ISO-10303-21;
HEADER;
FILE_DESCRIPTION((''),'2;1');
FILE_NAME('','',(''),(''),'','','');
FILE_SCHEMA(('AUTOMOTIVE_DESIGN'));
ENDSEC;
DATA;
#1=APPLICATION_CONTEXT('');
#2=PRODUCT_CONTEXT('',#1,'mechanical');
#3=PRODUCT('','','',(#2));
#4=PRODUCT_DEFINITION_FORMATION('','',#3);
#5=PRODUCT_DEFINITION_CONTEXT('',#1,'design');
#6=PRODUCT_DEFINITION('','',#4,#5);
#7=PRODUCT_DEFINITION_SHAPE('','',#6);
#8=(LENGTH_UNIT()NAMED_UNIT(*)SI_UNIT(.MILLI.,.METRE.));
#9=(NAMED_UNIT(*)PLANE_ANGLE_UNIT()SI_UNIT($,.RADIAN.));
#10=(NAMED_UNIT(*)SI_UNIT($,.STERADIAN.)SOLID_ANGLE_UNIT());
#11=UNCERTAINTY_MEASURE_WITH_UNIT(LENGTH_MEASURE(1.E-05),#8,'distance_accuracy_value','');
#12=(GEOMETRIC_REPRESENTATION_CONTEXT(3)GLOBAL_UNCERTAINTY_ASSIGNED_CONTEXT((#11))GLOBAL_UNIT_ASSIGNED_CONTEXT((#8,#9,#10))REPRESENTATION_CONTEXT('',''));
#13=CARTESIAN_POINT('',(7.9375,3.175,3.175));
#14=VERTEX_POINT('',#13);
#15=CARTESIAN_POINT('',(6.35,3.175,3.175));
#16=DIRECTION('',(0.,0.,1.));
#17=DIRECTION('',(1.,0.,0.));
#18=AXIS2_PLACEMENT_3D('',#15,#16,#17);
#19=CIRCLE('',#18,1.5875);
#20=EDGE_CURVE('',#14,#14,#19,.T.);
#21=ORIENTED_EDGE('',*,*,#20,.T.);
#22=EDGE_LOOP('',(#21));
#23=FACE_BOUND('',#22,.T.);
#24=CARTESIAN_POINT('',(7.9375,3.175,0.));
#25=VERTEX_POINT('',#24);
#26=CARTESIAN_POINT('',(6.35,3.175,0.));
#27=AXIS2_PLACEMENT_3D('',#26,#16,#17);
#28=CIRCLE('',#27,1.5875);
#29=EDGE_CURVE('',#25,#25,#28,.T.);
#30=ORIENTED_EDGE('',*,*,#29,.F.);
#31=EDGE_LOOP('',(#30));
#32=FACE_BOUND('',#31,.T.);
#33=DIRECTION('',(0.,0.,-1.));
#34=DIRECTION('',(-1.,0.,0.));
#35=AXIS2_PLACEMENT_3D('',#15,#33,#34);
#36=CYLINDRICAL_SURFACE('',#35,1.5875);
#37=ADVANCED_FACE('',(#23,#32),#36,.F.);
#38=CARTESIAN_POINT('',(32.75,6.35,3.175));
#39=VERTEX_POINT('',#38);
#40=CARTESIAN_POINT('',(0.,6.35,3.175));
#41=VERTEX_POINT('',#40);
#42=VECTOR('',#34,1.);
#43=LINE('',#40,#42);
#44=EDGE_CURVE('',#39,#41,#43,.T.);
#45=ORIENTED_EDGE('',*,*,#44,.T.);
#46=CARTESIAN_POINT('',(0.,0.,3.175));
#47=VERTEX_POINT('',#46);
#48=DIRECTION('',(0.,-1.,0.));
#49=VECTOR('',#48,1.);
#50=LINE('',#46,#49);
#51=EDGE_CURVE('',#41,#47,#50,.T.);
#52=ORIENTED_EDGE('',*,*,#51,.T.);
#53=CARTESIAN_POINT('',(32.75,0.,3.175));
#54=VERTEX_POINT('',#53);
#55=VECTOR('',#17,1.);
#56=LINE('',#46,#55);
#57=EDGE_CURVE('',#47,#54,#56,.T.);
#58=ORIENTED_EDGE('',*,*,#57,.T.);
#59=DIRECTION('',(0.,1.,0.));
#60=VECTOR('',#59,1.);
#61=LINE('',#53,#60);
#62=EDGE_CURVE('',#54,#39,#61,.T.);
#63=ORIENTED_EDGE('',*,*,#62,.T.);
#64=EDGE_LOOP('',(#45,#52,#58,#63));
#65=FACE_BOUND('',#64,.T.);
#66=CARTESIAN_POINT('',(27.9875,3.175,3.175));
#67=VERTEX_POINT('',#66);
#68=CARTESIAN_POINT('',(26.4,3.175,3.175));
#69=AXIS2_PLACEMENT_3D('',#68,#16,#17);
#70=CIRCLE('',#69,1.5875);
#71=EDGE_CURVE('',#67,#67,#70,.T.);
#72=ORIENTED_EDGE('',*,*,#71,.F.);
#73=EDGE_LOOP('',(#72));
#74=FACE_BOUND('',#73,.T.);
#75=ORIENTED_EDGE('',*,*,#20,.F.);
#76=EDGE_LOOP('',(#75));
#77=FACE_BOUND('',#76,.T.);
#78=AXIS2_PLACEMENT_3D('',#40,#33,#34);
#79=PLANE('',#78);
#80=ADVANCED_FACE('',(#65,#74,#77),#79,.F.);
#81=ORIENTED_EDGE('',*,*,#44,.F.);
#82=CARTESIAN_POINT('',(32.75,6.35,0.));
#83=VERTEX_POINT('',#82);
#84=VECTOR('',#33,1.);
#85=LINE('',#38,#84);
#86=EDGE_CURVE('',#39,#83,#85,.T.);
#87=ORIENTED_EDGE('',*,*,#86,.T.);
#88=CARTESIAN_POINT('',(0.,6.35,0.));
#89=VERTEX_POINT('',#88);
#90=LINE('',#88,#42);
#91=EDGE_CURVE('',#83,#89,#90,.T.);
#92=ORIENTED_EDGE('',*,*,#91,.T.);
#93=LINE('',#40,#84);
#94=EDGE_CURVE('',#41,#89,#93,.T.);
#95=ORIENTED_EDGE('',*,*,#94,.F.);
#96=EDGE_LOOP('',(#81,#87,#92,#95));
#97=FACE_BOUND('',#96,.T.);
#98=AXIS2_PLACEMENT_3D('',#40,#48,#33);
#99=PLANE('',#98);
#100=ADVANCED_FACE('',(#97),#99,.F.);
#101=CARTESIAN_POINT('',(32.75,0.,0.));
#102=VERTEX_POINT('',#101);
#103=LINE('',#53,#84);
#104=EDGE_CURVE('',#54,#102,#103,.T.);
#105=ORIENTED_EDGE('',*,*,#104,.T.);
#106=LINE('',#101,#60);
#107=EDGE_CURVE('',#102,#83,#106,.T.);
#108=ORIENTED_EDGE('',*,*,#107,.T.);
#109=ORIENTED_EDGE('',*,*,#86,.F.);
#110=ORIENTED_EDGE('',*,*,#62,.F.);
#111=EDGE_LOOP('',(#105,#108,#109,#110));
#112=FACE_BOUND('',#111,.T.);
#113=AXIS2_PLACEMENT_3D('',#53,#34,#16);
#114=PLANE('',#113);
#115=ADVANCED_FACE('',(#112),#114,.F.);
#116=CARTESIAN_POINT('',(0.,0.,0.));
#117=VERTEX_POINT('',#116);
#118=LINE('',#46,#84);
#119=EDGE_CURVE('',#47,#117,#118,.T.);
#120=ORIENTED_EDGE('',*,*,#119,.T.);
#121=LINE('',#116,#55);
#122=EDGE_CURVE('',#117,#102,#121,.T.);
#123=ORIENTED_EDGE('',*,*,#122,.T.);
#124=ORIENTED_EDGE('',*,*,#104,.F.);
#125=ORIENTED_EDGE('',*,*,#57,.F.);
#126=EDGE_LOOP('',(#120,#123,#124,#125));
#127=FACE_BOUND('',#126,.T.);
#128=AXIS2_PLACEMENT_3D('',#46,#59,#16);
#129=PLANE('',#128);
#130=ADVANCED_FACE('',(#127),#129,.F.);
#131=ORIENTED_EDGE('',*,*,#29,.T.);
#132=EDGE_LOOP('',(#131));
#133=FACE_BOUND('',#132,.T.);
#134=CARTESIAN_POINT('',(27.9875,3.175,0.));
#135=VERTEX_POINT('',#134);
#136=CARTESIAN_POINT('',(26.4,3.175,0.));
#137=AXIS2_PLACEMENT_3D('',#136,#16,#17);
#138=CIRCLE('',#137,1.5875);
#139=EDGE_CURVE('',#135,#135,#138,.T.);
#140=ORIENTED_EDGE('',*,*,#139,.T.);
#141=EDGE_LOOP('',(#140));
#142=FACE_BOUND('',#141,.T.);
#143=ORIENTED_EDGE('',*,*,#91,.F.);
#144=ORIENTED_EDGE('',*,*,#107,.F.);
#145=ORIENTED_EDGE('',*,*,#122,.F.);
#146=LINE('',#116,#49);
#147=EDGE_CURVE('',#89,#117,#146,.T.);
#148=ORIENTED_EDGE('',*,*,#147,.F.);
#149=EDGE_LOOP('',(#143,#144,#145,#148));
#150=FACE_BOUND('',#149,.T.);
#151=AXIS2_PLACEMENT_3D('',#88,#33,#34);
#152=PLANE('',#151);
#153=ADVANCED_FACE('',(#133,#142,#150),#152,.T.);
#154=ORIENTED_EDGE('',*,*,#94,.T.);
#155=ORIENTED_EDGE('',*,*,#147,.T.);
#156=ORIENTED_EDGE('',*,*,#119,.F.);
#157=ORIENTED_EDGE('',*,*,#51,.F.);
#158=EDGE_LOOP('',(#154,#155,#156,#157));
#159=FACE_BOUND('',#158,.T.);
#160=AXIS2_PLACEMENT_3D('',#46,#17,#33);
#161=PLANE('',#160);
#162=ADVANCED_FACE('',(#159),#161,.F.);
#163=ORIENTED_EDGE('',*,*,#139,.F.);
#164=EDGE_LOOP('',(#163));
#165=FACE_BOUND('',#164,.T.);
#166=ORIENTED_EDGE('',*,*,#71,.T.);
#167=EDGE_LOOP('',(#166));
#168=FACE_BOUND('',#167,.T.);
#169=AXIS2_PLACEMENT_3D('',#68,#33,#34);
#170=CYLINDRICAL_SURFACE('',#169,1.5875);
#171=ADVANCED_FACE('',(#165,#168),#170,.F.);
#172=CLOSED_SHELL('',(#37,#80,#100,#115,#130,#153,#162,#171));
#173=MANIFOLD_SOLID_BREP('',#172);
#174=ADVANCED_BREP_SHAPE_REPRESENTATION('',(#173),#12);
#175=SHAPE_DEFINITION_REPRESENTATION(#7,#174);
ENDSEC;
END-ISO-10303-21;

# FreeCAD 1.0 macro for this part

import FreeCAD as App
import Part
import Sketcher

V = App.Vector
Q = App.Units.Quantity


def add_polygon(sketch, points):
    """Adds a closed chain of lines whose ends are joined by coincident constraints."""
    first, n = sketch.GeometryCount, len(points)
    for a, b in zip(points, points[1:] + points[:1]):
        sketch.addGeometry(Part.LineSegment(App.Vector(*a, 0), App.Vector(*b, 0)), False)
    for i in range(n):
        sketch.addConstraint(Sketcher.Constraint("Coincident", first + i, 2, first + (i + 1) % n, 1))

doc = App.newDocument("Part")
body = doc.addObject("PartDesign::Body", "Body")

sketch1 = body.newObject("Sketcher::SketchObject", "Sketch")
sketch1.AttachmentSupport = (doc.getObject("XY_Plane"), [""])
sketch1.MapMode = "FlatFace"
add_polygon(sketch1, [(0, 6.3), (0, 0), (32.8, 0), (32.8, 6.3)])
sketch1.addGeometry(Part.Circle(V(6.3, 3.2, 0), V(0, 0, 1), 1.6), False)
sketch1.addGeometry(Part.Circle(V(26.4, 3.2, 0), V(0, 0, 1), 1.6), False)
sketch1.addConstraint(Sketcher.Constraint("Vertical", 0))
sketch1.addConstraint(Sketcher.Constraint("Horizontal", 1))
sketch1.addConstraint(Sketcher.Constraint("Vertical", 2))
sketch1.addConstraint(Sketcher.Constraint("Horizontal", 3))
sketch1.addConstraint(Sketcher.Constraint("Coincident", 0, 2, -1, 1))
sketch1.addConstraint(Sketcher.Constraint("Equal", 4, 5))
sketch1.addConstraint(Sketcher.Constraint("Horizontal", 4, 3, 5, 3))
sketch1.addConstraint(Sketcher.Constraint("Diameter", 4, Q("0.125 in")))
sketch1.addConstraint(Sketcher.Constraint("DistanceY", 0, 2, 0, 1, Q("0.25 in")))
sketch1.addConstraint(Sketcher.Constraint("DistanceX", -1, 1, 4, 3, Q("0.25 in")))
sketch1.addConstraint(Sketcher.Constraint("DistanceX", 5, 3, 1, 2, Q("0.25 in")))
sketch1.addConstraint(Sketcher.Constraint("DistanceY", -1, 1, 4, 3, Q("0.125 in")))
sketch1.addConstraint(Sketcher.Constraint("DistanceX", 1, 1, 1, 2, Q("32.75 mm")))
pad1 = body.newObject("PartDesign::Pad", "Pad")
pad1.Profile = sketch1
pad1.Length = Q("0.125 in")

doc.recompute()
